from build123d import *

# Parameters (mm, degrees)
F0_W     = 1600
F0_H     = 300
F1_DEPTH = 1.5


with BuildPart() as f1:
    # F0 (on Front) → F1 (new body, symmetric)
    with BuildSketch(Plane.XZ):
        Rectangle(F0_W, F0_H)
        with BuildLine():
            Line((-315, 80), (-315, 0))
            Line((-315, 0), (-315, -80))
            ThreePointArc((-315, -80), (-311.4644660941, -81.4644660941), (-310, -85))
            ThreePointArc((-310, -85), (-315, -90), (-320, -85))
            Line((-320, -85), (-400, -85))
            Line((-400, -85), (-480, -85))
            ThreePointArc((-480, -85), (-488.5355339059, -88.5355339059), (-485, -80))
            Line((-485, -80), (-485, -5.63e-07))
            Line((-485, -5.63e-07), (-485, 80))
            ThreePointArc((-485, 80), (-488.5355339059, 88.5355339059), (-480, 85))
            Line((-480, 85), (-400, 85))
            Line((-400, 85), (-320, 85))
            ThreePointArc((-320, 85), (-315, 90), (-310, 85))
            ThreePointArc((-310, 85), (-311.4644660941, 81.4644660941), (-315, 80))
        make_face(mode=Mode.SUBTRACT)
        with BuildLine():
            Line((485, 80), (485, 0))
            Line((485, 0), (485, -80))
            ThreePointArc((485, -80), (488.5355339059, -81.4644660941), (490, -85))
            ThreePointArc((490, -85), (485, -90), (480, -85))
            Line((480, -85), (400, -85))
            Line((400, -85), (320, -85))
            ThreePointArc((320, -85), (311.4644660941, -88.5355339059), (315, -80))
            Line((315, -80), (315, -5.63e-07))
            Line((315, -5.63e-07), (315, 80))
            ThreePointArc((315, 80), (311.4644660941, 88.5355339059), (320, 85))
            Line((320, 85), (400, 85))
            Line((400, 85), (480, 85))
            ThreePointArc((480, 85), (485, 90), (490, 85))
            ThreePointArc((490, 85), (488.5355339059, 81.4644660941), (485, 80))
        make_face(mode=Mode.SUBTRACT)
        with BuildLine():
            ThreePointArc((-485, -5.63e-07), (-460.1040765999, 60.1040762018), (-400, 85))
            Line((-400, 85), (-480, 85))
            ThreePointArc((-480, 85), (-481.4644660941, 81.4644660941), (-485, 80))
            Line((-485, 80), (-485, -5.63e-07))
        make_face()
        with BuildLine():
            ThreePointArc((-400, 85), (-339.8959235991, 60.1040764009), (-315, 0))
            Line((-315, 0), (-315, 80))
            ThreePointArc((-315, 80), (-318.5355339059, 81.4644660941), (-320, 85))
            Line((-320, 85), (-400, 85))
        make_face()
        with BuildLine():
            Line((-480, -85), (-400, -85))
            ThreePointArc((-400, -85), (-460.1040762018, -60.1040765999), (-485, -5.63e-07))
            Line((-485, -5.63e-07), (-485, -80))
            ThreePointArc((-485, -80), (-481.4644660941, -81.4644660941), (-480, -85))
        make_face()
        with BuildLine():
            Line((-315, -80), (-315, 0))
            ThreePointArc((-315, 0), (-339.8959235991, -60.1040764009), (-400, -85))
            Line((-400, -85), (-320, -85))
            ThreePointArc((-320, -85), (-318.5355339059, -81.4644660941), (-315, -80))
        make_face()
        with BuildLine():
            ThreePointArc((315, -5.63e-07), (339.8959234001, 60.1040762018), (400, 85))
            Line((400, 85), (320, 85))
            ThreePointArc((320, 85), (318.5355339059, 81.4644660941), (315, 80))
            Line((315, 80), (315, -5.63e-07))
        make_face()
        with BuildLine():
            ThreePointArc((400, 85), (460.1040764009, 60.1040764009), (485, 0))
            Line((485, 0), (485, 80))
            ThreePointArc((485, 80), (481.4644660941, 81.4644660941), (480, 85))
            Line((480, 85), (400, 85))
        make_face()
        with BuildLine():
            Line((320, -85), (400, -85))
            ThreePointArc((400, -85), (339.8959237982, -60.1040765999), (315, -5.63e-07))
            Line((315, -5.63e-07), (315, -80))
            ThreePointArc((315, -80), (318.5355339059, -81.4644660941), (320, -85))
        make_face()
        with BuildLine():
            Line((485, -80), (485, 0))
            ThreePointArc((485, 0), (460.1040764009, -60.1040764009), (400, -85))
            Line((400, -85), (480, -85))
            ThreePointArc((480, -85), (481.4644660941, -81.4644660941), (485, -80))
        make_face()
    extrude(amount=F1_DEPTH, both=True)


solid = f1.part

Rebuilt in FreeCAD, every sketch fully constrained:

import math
import FreeCAD as App
import Part
import Sketcher
Q = App.Units.Quantity


def add_polygon(sketch, points):
    """Adds a closed chain of lines whose ends are joined by coincident constraints."""
    first, n = sketch.GeometryCount, len(points)
    for a, b in zip(points, points[1:] + points[:1]):
        sketch.addGeometry(Part.LineSegment(App.Vector(*a, 0), App.Vector(*b, 0)), False)
    for i in range(n):
        sketch.addConstraint(Sketcher.Constraint("Coincident", first + i, 2, first + (i + 1) % n, 1))

doc = App.newDocument("Part")
body = doc.addObject("PartDesign::Body", "Body")

sketch1 = body.newObject("Sketcher::SketchObject", "Sketch")
sketch1.AttachmentSupport = (doc.getObject("XZ_Plane"), [""])
sketch1.MapMode = "FlatFace"
add_polygon(sketch1, [(-800, 150), (-800, -150), (800, -150), (800, 150)])
sketch1.addGeometry(Part.ArcOfCircle(Part.Circle(App.Vector(-315, 85, 0), App.Vector(0, 0, 1), 5), math.radians(-90), math.radians(0)), False)
sketch1.addGeometry(Part.ArcOfCircle(Part.Circle(App.Vector(-315, 85, 0), App.Vector(0, 0, 1), 5), math.radians(180), math.radians(270)), False)
sketch1.addGeometry(Part.ArcOfCircle(Part.Circle(App.Vector(-315, 85, 0), App.Vector(0, 0, 1), 5), math.radians(0), math.radians(180)), False)
sketch1.addGeometry(Part.ArcOfCircle(Part.Circle(App.Vector(-315, -85, 0), App.Vector(0, 0, 1), 5), math.radians(0), math.radians(90)), False)
sketch1.addGeometry(Part.ArcOfCircle(Part.Circle(App.Vector(-315, -85, 0), App.Vector(0, 0, 1), 5), math.radians(180), math.radians(360)), False)
sketch1.addGeometry(Part.ArcOfCircle(Part.Circle(App.Vector(-315, -85, 0), App.Vector(0, 0, 1), 5), math.radians(90), math.radians(180)), False)
sketch1.addGeometry(Part.ArcOfCircle(Part.Circle(App.Vector(-400, 0, 0), App.Vector(0, 0, 1), 85), math.radians(90), math.radians(270)), False)
sketch1.addGeometry(Part.ArcOfCircle(Part.Circle(App.Vector(-400, 0, 0), App.Vector(0, 0, 1), 85), math.radians(0), math.radians(90)), False)
sketch1.addGeometry(Part.ArcOfCircle(Part.Circle(App.Vector(-400, 0, 0), App.Vector(0, 0, 1), 85), math.radians(-90), math.radians(0)), False)
sketch1.addGeometry(Part.ArcOfCircle(Part.Circle(App.Vector(-485, -85, 0), App.Vector(0, 0, 1), 5), math.radians(90), math.radians(360)), False)
sketch1.addGeometry(Part.ArcOfCircle(Part.Circle(App.Vector(-485, -85, 0), App.Vector(0, 0, 1), 5), math.radians(0), math.radians(90)), False)
sketch1.addGeometry(Part.ArcOfCircle(Part.Circle(App.Vector(-485, 85, 0), App.Vector(0, 0, 1), 5), math.radians(0), math.radians(270)), False)
sketch1.addGeometry(Part.ArcOfCircle(Part.Circle(App.Vector(-485, 85, 0), App.Vector(0, 0, 1), 5), math.radians(-90), math.radians(0)), False)
sketch1.addGeometry(Part.ArcOfCircle(Part.Circle(App.Vector(485, 85, 0), App.Vector(0, 0, 1), 5), math.radians(-90), math.radians(0)), False)
sketch1.addGeometry(Part.ArcOfCircle(Part.Circle(App.Vector(485, 85, 0), App.Vector(0, 0, 1), 5), math.radians(180), math.radians(270)), False)
sketch1.addGeometry(Part.ArcOfCircle(Part.Circle(App.Vector(485, 85, 0), App.Vector(0, 0, 1), 5), math.radians(0), math.radians(180)), False)
sketch1.addGeometry(Part.ArcOfCircle(Part.Circle(App.Vector(485, -85, 0), App.Vector(0, 0, 1), 5), math.radians(0), math.radians(90)), False)
sketch1.addGeometry(Part.ArcOfCircle(Part.Circle(App.Vector(485, -85, 0), App.Vector(0, 0, 1), 5), math.radians(180), math.radians(360)), False)
sketch1.addGeometry(Part.ArcOfCircle(Part.Circle(App.Vector(485, -85, 0), App.Vector(0, 0, 1), 5), math.radians(90), math.radians(180)), False)
sketch1.addGeometry(Part.ArcOfCircle(Part.Circle(App.Vector(400, 0, 0), App.Vector(0, 0, 1), 85), math.radians(90), math.radians(270)), False)
sketch1.addGeometry(Part.ArcOfCircle(Part.Circle(App.Vector(400, 0, 0), App.Vector(0, 0, 1), 85), math.radians(0), math.radians(90)), False)
sketch1.addGeometry(Part.ArcOfCircle(Part.Circle(App.Vector(400, 0, 0), App.Vector(0, 0, 1), 85), math.radians(-90), math.radians(0)), False)
sketch1.addGeometry(Part.ArcOfCircle(Part.Circle(App.Vector(315, -85, 0), App.Vector(0, 0, 1), 5), math.radians(90), math.radians(360)), False)
sketch1.addGeometry(Part.ArcOfCircle(Part.Circle(App.Vector(315, -85, 0), App.Vector(0, 0, 1), 5), math.radians(0), math.radians(90)), False)
sketch1.addGeometry(Part.ArcOfCircle(Part.Circle(App.Vector(315, 85, 0), App.Vector(0, 0, 1), 5), math.radians(0), math.radians(270)), False)
sketch1.addGeometry(Part.ArcOfCircle(Part.Circle(App.Vector(315, 85, 0), App.Vector(0, 0, 1), 5), math.radians(-90), math.radians(0)), False)
sketch1.addConstraint([
    Sketcher.Constraint("Tangent", 4, 1, 5, 2),
    Sketcher.Constraint("Tangent", 5, 1, 6, 2),
    Sketcher.Constraint("Tangent", 6, 1, 4, 2),
    Sketcher.Constraint("Tangent", 7, 1, 8, 2),
    Sketcher.Constraint("Tangent", 8, 1, 9, 2),
    Sketcher.Constraint("Tangent", 9, 1, 7, 2),
    Sketcher.Constraint("Tangent", 10, 1, 11, 2),
    Sketcher.Constraint("Tangent", 11, 1, 12, 2),
    Sketcher.Constraint("Tangent", 12, 1, 10, 2),
    Sketcher.Constraint("Tangent", 13, 1, 14, 2),
    Sketcher.Constraint("Coincident", 14, 1, 13, 2),
    Sketcher.Constraint("Tangent", 15, 1, 16, 2),
    Sketcher.Constraint("Coincident", 16, 1, 15, 2),
    Sketcher.Constraint("Tangent", 17, 1, 18, 2),
    Sketcher.Constraint("Tangent", 18, 1, 19, 2),
    Sketcher.Constraint("Tangent", 19, 1, 17, 2),
    Sketcher.Constraint("Tangent", 20, 1, 21, 2),
    Sketcher.Constraint("Tangent", 21, 1, 22, 2),
    Sketcher.Constraint("Tangent", 22, 1, 20, 2),
    Sketcher.Constraint("Tangent", 23, 1, 24, 2),
    Sketcher.Constraint("Tangent", 24, 1, 25, 2),
    Sketcher.Constraint("Tangent", 25, 1, 23, 2),
    Sketcher.Constraint("Tangent", 26, 1, 27, 2),
    Sketcher.Constraint("Coincident", 27, 1, 26, 2),
    Sketcher.Constraint("Tangent", 28, 1, 29, 2),
    Sketcher.Constraint("Coincident", 29, 1, 28, 2),
    Sketcher.Constraint("Vertical", 0),
    Sketcher.Constraint("Horizontal", 1),
    Sketcher.Constraint("Vertical", 2),
    Sketcher.Constraint("Horizontal", 3),
    Sketcher.Constraint("Equal", 6, 7),
    Sketcher.Constraint("Equal", 9, 13),
    Sketcher.Constraint("Equal", 14, 15),
    Sketcher.Constraint("Equal", 16, 17),
    Sketcher.Constraint("Equal", 19, 20),
    Sketcher.Constraint("Equal", 12, 23),
    Sketcher.Constraint("Equal", 22, 26),
    Sketcher.Constraint("Equal", 27, 28),
    Sketcher.Constraint("Symmetric", 13, 3, 17, 3, -1, 1),
    Sketcher.Constraint("Symmetric", 15, 3, 20, 3, -1, 1),
    Sketcher.Constraint("Symmetric", 10, 3, 23, 3, -1, 1),
    Sketcher.Constraint("Symmetric", 4, 3, 26, 3, -1, 1),
    Sketcher.Constraint("Symmetric", 7, 3, 28, 3, -1, 1),
    Sketcher.Constraint("Symmetric", 0, 2, 2, 2, -1, 1),
    Sketcher.Constraint("Symmetric", 15, 3, 17, 3, -2),
    Sketcher.Constraint("Symmetric", 7, 3, 26, 3, -2),
    Sketcher.Constraint("Symmetric", 10, 1, 23, 1, -2),
    Sketcher.Constraint("PointOnObject", 11, 1, -1),
    Sketcher.Constraint("PointOnObject", 24, 1, -1),
    Sketcher.Constraint("Horizontal", 9, 3, 13, 3),
    Sketcher.Constraint("Horizontal", 29, 3, 5, 1),
    Sketcher.Constraint("Horizontal", 5, 1, 6, 1),
    Sketcher.Constraint("Horizontal", 27, 3, 7, 1),
    Sketcher.Constraint("Horizontal", 7, 1, 8, 1),
    Sketcher.Constraint("Horizontal", 6, 1, 10, 1),
    Sketcher.Constraint("Horizontal", 12, 1, 14, 1),
    Sketcher.Constraint("Horizontal", 10, 1, 15, 1),
    Sketcher.Constraint("Horizontal", 15, 1, 18, 1),
    Sketcher.Constraint("Horizontal", 18, 1, 19, 1),
    Sketcher.Constraint("Horizontal", 14, 1, 20, 1),
    Sketcher.Constraint("Horizontal", 20, 1, 21, 1),
    Sketcher.Constraint("Horizontal", 25, 1, 27, 1),
    Sketcher.Constraint("Horizontal", 23, 1, 28, 1),
    Sketcher.Constraint("Vertical", 9, 3, 4, 1),
    Sketcher.Constraint("Vertical", 4, 1, 9, 1),
    Sketcher.Constraint("Vertical", 12, 3, 10, 1),
    Sketcher.Constraint("Vertical", 9, 1, 11, 1),
    Sketcher.Constraint("Vertical", 10, 1, 12, 1),
    Sketcher.Constraint("Vertical", 16, 3, 13, 1),
    Sketcher.Constraint("Vertical", 13, 1, 16, 1),
    Sketcher.Constraint("Vertical", 22, 3, 17, 1),
    Sketcher.Constraint("Vertical", 17, 1, 22, 1),
    Sketcher.Constraint("Vertical", 22, 1, 24, 1),
    Sketcher.Constraint("Vertical", 23, 1, 25, 1),
    Sketcher.Constraint("Vertical", 29, 3, 26, 1),
    Sketcher.Constraint("Vertical", 26, 1, 29, 1),
    Sketcher.Constraint("Radius", 4, Q("5 mm")),
    Sketcher.Constraint("Radius", 10, Q("85 mm")),
    Sketcher.Constraint("DistanceX", 1, 1, 1, 2, Q("1600 mm")),
    Sketcher.Constraint("DistanceY", 0, 2, 0, 1, Q("300 mm")),
    Sketcher.Constraint("DistanceX", 4, 3, -1, 1, Q("315 mm")),
])
pad1 = body.newObject("PartDesign::Pad", "Pad")
pad1.Profile = sketch1
pad1.Length = 3
pad1.Midplane = True

doc.recompute()
